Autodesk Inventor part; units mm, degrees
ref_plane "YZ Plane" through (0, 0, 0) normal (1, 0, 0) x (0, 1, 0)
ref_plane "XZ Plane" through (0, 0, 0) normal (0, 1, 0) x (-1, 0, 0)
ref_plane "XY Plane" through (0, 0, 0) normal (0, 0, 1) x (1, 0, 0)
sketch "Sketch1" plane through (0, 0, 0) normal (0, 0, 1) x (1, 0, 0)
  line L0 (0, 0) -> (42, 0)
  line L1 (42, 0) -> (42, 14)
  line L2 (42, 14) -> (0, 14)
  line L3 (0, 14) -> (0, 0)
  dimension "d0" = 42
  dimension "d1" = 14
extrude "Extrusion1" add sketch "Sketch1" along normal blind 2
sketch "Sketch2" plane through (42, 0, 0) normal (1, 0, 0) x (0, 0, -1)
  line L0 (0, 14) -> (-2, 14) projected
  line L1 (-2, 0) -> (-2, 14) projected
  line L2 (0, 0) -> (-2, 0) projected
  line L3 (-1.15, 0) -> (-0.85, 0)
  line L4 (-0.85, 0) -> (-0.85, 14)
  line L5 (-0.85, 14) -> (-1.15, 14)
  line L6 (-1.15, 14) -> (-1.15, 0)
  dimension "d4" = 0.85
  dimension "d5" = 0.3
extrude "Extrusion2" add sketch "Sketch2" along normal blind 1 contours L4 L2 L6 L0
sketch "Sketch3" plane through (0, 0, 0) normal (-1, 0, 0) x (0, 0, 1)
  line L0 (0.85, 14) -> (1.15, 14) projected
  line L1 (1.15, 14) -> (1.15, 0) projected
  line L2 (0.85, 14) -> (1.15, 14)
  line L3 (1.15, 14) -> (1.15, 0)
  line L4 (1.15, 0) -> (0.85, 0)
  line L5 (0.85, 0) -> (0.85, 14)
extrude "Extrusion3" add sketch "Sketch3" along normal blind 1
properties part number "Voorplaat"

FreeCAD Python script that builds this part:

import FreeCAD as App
import Part
import Sketcher


def add_polygon(sketch, points):
    """Adds a closed chain of lines whose ends are joined by coincident constraints."""
    first, n = sketch.GeometryCount, len(points)
    for a, b in zip(points, points[1:] + points[:1]):
        sketch.addGeometry(Part.LineSegment(App.Vector(*a, 0), App.Vector(*b, 0)), False)
    for i in range(n):
        sketch.addConstraint(Sketcher.Constraint("Coincident", first + i, 2, first + (i + 1) % n, 1))

doc = App.newDocument("Part")
body = doc.addObject("PartDesign::Body", "Body")

# Sketch on XY plane
sketch1 = body.newObject("Sketcher::SketchObject", "Sketch")
sketch1.AttachmentSupport = (doc.getObject("XY_Plane"), [""])
sketch1.MapMode = "FlatFace"
add_polygon(sketch1, [(0, 14), (0, 0), (42, 0), (42, 14)])  # lines 0-3
sketch1.addConstraint(Sketcher.Constraint("Vertical", 0))
sketch1.addConstraint(Sketcher.Constraint("Horizontal", 1))
sketch1.addConstraint(Sketcher.Constraint("Vertical", 2))
sketch1.addConstraint(Sketcher.Constraint("Horizontal", 3))
sketch1.addConstraint(Sketcher.Constraint("Coincident", 0, 2, -1, 1))
sketch1.addConstraint(Sketcher.Constraint("DistanceX", 1, 1, 1, 2, 42.0))
sketch1.addConstraint(Sketcher.Constraint("DistanceY", 0, 2, 0, 1, 14.0))
pad1 = body.newObject("PartDesign::Pad", "Pad")
pad1.Profile = sketch1
pad1.Length = 2

# Sketch on YZ plane
sketch2 = body.newObject("Sketcher::SketchObject", "Sketch001")
sketch2.AttachmentSupport = (doc.getObject("YZ_Plane"), [""])
sketch2.MapMode = "FlatFace"
sketch2.AttachmentOffset = App.Placement(App.Vector(0, 0, 42), App.Rotation())
add_polygon(sketch2, [(0, 0.85), (14, 0.85), (14, 1.15), (0, 1.15)])  # lines 0-3
sketch2.addConstraint(Sketcher.Constraint("Horizontal", 0))
sketch2.addConstraint(Sketcher.Constraint("Vertical", 1))
sketch2.addConstraint(Sketcher.Constraint("Horizontal", 2))
sketch2.addConstraint(Sketcher.Constraint("Vertical", 3))
sketch2.addConstraint(Sketcher.Constraint("PointOnObject", 2, 2, -2))
sketch2.addConstraint(Sketcher.Constraint("DistanceY", 1, 1, 1, 2, 0.3))
sketch2.addConstraint(Sketcher.Constraint("DistanceX", 0, 1, 0, 2, 14.0))
sketch2.addConstraint(Sketcher.Constraint("DistanceY", -1, 1, 0, 2, 0.85))
pad2 = body.newObject("PartDesign::Pad", "Pad001")
pad2.Profile = sketch2
pad2.Length = 1

# Sketch on YZ plane
sketch3 = body.newObject("Sketcher::SketchObject", "Sketch002")
sketch3.AttachmentSupport = (doc.getObject("YZ_Plane"), [""])
sketch3.MapMode = "FlatFace"
add_polygon(sketch3, [(14, 1.15), (14, 0.85), (0, 0.85), (0, 1.15)])  # lines 0-3
sketch3.addConstraint(Sketcher.Constraint("Vertical", 0))
sketch3.addConstraint(Sketcher.Constraint("Horizontal", 1))
sketch3.addConstraint(Sketcher.Constraint("Vertical", 2))
sketch3.addConstraint(Sketcher.Constraint("Horizontal", 3))
sketch3.addConstraint(Sketcher.Constraint("PointOnObject", 1, 2, -2))
sketch3.addConstraint(Sketcher.Constraint("DistanceX", 1, 2, 1, 1, 14.0))
sketch3.addConstraint(Sketcher.Constraint("DistanceY", 0, 2, 0, 1, 0.3))
sketch3.addConstraint(Sketcher.Constraint("DistanceY", -1, 1, 0, 2, 0.85))
pad3 = body.newObject("PartDesign::Pad", "Pad002")
pad3.Profile = sketch3
pad3.Length = 1
pad3.Reversed = True

doc.recompute()
